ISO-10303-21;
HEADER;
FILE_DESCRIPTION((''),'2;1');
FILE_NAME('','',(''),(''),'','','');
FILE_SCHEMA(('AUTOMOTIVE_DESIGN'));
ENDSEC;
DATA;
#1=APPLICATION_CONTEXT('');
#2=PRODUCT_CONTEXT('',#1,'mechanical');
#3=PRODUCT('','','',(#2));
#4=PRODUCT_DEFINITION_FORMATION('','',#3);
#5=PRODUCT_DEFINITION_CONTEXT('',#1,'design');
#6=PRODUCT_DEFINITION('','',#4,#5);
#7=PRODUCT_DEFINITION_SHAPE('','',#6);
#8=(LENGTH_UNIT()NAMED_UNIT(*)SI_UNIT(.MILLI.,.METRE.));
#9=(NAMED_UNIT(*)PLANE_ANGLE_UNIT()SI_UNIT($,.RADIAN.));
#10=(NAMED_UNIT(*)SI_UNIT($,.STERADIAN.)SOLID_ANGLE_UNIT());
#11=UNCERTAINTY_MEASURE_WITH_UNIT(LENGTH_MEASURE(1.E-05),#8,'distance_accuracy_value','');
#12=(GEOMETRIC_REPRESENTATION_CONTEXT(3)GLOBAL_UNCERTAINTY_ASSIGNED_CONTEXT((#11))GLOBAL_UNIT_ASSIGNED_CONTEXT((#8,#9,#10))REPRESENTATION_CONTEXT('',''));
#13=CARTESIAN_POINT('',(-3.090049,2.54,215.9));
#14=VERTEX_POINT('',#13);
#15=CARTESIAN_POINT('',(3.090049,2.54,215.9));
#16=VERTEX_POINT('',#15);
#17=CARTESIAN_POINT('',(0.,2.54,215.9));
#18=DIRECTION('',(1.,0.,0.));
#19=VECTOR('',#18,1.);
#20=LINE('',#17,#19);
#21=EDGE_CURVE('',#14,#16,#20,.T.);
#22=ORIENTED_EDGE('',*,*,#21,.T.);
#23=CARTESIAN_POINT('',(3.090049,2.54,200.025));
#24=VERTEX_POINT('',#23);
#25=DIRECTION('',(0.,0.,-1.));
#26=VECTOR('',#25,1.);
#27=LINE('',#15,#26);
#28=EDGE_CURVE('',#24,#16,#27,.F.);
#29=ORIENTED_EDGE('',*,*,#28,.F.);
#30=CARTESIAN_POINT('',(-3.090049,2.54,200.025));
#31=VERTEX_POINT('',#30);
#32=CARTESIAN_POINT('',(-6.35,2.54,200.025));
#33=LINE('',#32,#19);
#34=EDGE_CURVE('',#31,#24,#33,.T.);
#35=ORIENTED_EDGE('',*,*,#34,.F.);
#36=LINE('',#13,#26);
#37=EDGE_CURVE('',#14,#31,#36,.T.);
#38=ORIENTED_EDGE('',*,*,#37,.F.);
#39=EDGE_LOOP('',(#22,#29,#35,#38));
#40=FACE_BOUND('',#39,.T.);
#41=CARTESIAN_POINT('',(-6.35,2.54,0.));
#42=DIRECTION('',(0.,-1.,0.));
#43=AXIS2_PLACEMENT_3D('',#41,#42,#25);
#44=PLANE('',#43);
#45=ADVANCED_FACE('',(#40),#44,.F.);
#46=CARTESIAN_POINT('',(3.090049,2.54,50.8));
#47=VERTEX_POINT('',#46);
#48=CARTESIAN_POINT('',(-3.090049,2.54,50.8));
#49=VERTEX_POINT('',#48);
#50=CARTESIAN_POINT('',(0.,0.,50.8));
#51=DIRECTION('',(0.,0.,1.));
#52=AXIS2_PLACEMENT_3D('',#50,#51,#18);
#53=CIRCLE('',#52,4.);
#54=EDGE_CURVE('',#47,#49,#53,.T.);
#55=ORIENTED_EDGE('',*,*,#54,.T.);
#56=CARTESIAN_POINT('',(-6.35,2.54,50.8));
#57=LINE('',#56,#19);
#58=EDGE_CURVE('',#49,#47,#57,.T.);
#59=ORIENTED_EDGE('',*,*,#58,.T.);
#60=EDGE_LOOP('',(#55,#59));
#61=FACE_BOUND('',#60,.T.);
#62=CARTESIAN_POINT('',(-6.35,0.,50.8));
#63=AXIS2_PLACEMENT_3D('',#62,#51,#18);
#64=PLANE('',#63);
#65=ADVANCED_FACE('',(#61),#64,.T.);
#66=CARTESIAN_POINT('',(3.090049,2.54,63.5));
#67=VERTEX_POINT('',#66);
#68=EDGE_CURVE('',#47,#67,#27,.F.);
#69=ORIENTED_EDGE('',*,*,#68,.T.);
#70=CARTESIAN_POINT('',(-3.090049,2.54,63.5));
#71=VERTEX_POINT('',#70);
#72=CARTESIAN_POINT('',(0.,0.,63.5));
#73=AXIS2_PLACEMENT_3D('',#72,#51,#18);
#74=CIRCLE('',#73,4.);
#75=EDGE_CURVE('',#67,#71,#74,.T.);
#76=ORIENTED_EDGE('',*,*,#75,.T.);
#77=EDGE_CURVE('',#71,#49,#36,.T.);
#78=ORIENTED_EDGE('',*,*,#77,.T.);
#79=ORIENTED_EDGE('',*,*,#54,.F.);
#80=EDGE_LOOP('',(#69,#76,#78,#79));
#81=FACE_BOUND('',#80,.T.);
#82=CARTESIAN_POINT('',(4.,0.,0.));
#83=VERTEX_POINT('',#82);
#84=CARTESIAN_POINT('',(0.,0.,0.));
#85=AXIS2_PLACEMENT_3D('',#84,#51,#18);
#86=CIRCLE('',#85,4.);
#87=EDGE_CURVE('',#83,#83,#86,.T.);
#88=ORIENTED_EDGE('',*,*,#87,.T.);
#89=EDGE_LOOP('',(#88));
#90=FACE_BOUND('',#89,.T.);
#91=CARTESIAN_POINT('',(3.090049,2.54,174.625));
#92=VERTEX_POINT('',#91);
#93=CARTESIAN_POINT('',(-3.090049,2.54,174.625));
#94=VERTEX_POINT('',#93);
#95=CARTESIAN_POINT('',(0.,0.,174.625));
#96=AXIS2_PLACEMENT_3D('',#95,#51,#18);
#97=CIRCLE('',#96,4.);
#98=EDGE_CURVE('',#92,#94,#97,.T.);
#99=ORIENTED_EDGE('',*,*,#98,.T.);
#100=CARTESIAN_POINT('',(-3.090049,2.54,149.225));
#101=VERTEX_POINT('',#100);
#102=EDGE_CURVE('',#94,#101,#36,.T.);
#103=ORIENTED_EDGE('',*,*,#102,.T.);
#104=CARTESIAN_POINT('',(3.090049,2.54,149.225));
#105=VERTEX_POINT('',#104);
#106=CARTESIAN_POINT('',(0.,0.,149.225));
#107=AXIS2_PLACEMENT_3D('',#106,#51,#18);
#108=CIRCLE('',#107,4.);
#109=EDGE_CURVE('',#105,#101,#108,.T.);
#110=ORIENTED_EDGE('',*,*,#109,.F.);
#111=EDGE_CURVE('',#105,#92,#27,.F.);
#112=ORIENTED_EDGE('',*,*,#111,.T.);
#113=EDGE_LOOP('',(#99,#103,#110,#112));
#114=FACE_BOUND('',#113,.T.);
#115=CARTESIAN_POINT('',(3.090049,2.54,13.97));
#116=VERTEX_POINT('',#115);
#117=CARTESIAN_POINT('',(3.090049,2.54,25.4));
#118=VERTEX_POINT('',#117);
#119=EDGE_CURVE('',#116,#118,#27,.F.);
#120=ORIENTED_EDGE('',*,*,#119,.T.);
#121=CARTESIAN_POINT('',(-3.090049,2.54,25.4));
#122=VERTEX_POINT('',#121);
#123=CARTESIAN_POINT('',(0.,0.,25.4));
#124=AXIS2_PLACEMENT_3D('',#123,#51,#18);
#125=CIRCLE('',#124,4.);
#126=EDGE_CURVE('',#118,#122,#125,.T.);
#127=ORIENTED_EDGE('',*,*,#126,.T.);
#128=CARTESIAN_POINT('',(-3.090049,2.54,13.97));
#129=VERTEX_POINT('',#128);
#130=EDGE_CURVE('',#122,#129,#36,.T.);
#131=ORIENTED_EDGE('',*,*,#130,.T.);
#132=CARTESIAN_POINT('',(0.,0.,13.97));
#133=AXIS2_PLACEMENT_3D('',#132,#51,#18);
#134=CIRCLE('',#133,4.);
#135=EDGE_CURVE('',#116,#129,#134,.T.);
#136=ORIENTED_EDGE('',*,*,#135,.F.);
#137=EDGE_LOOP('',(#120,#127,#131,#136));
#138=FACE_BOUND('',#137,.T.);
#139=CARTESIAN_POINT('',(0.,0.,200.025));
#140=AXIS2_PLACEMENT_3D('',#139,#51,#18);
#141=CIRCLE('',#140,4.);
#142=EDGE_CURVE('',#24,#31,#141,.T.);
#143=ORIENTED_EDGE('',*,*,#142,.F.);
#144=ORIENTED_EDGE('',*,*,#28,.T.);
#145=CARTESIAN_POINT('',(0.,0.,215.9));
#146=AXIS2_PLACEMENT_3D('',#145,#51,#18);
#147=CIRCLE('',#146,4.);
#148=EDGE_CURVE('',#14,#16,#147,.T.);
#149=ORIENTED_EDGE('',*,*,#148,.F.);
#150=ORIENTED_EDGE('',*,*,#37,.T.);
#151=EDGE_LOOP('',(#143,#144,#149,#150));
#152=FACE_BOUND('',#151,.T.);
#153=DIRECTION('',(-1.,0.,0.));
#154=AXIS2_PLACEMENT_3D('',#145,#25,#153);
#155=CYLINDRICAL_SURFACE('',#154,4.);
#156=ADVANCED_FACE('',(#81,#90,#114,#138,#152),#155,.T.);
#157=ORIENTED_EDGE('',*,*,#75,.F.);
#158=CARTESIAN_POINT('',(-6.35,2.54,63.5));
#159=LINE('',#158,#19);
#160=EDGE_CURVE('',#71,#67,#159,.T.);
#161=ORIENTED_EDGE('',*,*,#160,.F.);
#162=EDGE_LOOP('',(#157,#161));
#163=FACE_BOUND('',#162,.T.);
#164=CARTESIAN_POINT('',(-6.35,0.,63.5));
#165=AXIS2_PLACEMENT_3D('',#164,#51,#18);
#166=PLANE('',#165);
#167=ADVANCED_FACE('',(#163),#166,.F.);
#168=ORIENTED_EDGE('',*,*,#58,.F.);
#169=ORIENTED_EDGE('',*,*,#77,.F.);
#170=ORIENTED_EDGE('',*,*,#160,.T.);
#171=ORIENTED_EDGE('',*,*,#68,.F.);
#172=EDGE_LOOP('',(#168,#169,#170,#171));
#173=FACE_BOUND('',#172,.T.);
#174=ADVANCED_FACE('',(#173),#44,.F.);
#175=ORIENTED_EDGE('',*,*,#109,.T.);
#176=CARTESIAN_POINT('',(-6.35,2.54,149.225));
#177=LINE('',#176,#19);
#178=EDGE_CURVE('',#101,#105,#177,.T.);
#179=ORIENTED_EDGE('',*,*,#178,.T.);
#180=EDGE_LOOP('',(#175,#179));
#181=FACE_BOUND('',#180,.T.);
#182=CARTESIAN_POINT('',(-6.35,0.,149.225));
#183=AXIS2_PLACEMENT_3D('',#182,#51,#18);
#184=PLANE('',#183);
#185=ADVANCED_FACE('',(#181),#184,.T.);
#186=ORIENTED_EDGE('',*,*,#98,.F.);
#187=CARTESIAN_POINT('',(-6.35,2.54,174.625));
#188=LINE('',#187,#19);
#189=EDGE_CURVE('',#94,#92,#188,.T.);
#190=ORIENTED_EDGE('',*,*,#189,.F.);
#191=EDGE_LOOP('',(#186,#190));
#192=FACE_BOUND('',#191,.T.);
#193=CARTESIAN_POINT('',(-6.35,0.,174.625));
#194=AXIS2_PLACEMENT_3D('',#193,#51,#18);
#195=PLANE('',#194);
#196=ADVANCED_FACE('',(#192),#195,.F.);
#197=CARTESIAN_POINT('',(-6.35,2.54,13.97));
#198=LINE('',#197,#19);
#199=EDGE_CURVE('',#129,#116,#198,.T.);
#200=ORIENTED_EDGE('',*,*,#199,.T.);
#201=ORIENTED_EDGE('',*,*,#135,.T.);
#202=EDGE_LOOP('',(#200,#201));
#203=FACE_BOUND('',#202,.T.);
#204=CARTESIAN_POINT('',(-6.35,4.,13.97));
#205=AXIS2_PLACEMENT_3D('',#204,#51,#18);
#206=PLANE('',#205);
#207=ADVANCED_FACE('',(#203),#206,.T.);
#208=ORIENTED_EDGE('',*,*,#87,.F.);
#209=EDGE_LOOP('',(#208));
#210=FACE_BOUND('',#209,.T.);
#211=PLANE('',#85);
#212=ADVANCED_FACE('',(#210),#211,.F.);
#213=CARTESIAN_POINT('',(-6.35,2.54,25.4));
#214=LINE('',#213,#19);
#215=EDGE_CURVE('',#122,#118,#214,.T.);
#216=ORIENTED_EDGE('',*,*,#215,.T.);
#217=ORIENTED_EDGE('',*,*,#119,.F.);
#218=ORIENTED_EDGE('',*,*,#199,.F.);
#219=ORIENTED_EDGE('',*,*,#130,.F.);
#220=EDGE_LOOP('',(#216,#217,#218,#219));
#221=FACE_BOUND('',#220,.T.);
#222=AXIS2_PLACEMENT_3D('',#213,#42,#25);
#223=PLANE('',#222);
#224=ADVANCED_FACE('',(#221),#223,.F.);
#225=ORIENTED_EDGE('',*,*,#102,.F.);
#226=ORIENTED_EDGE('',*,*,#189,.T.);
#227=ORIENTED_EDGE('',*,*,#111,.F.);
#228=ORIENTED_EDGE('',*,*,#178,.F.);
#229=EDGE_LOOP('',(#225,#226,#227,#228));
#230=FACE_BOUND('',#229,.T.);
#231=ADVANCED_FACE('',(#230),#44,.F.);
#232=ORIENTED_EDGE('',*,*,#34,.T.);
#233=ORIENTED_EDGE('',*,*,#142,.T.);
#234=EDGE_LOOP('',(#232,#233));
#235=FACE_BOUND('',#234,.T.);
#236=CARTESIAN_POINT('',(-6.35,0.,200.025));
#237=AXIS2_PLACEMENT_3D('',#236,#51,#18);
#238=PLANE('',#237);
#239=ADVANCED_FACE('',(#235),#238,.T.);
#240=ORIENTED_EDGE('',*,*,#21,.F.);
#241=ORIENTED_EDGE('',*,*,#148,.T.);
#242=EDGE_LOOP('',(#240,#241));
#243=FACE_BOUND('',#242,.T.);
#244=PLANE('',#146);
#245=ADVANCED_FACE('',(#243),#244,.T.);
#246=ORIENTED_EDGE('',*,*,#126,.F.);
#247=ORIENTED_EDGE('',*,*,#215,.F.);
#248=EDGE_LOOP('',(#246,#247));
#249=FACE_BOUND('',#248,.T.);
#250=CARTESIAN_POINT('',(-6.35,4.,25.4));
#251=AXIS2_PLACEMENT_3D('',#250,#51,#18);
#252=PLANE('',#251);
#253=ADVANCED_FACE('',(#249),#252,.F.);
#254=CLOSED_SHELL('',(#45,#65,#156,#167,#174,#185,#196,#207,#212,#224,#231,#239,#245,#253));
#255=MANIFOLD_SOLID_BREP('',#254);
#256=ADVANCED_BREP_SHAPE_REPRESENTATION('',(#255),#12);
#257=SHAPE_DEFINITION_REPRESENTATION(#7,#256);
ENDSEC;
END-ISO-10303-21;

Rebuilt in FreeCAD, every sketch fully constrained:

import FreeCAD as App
import Part
import Sketcher

V = App.Vector
Q = App.Units.Quantity


def add_polygon(sketch, points):
    """Adds a closed chain of lines whose ends are joined by coincident constraints."""
    first, n = sketch.GeometryCount, len(points)
    for a, b in zip(points, points[1:] + points[:1]):
        sketch.addGeometry(Part.LineSegment(App.Vector(*a, 0), App.Vector(*b, 0)), False)
    for i in range(n):
        sketch.addConstraint(Sketcher.Constraint("Coincident", first + i, 2, first + (i + 1) % n, 1))

doc = App.newDocument("Part")
body = doc.addObject("PartDesign::Body", "Body")

# Sketch on XY plane
sketch1 = body.newObject("Sketcher::SketchObject", "Sketch")
sketch1.AttachmentSupport = (doc.getObject("XY_Plane"), [""])
sketch1.MapMode = "FlatFace"
sketch1.addGeometry(Part.Circle(V(0, 0, 0), V(0, 0, 1), 4), False)
sketch1.addConstraint(Sketcher.Constraint("Coincident", 0, 3, -1, 1))
sketch1.addConstraint(Sketcher.Constraint("Diameter", 0, 8.0))
pad1 = body.newObject("PartDesign::Pad", "Pad")
pad1.Profile = sketch1
pad1.Length = Q("8.5 in")

# Sketch on YZ plane
sketch2 = body.newObject("Sketcher::SketchObject", "Sketch001")
sketch2.AttachmentSupport = (doc.getObject("YZ_Plane"), [""])
sketch2.MapMode = "FlatFace"
add_polygon(sketch2, [(4, 63.5), (2.5, 63.5), (2.5, 50.8), (4, 50.8)])  # lines 0-3
add_polygon(sketch2, [(4, 174.6), (2.5, 174.6), (2.5, 149.2), (4, 149.2)])  # lines 4-7
add_polygon(sketch2, [(4, 215.9), (2.5, 215.9), (2.5, 200), (4, 200)])  # lines 8-11
add_polygon(sketch2, [(4, 25.4), (2.5, 25.4), (2.5, 14), (4, 14)])  # lines 12-15
sketch2.addConstraint(Sketcher.Constraint("Horizontal", 0))
sketch2.addConstraint(Sketcher.Constraint("Vertical", 1))
sketch2.addConstraint(Sketcher.Constraint("Horizontal", 2))
sketch2.addConstraint(Sketcher.Constraint("Vertical", 3))
sketch2.addConstraint(Sketcher.Constraint("Horizontal", 4))
sketch2.addConstraint(Sketcher.Constraint("Vertical", 5))
sketch2.addConstraint(Sketcher.Constraint("Horizontal", 6))
sketch2.addConstraint(Sketcher.Constraint("Vertical", 7))
sketch2.addConstraint(Sketcher.Constraint("Horizontal", 8))
sketch2.addConstraint(Sketcher.Constraint("Vertical", 9))
sketch2.addConstraint(Sketcher.Constraint("Horizontal", 10))
sketch2.addConstraint(Sketcher.Constraint("Vertical", 11))
sketch2.addConstraint(Sketcher.Constraint("Horizontal", 12))
sketch2.addConstraint(Sketcher.Constraint("Vertical", 13))
sketch2.addConstraint(Sketcher.Constraint("Horizontal", 14))
sketch2.addConstraint(Sketcher.Constraint("Vertical", 15))
sketch2.addConstraint(Sketcher.Constraint("Vertical", 1, 2, 4, 2))
sketch2.addConstraint(Sketcher.Constraint("Vertical", 3, 2, 6, 2))
sketch2.addConstraint(Sketcher.Constraint("Vertical", 5, 2, 8, 2))
sketch2.addConstraint(Sketcher.Constraint("Vertical", 7, 2, 10, 2))
sketch2.addConstraint(Sketcher.Constraint("Vertical", 9, 2, 12, 2))
sketch2.addConstraint(Sketcher.Constraint("Vertical", 11, 2, 14, 2))
sketch2.addConstraint(Sketcher.Constraint("DistanceY", 5, 2, 5, 1, Q("1 in")))
sketch2.addConstraint(Sketcher.Constraint("DistanceY", 1, 2, 1, 1, Q("0.5 in")))
sketch2.addConstraint(Sketcher.Constraint("DistanceY", -1, 1, 1, 2, Q("2 in")))
sketch2.addConstraint(Sketcher.Constraint("DistanceY", -1, 1, 12, 2, Q("1 in")))
sketch2.addConstraint(Sketcher.Constraint("DistanceY", 0, 2, 8, 2, Q("6 in")))
sketch2.addConstraint(Sketcher.Constraint("DistanceY", 4, 2, 9, 2, Q("1 in")))
sketch2.addConstraint(Sketcher.Constraint("DistanceY", 13, 2, 13, 1, Q("0.45 in")))
sketch2.addConstraint(Sketcher.Constraint("DistanceX", -1, 1, 0, 2, Q("0.1 in")))
sketch2.addConstraint(Sketcher.Constraint("DistanceY", 9, 2, 9, 1, Q("0.625 in")))
sketch2.addConstraint(Sketcher.Constraint("DistanceX", 0, 2, 0, 1, 1.46))
pocket1 = body.newObject("PartDesign::Pocket", "Pocket")
pocket1.Profile = sketch2
pocket1.Length = Q("0.5 in")
pocket1.Midplane = True

doc.recompute()
